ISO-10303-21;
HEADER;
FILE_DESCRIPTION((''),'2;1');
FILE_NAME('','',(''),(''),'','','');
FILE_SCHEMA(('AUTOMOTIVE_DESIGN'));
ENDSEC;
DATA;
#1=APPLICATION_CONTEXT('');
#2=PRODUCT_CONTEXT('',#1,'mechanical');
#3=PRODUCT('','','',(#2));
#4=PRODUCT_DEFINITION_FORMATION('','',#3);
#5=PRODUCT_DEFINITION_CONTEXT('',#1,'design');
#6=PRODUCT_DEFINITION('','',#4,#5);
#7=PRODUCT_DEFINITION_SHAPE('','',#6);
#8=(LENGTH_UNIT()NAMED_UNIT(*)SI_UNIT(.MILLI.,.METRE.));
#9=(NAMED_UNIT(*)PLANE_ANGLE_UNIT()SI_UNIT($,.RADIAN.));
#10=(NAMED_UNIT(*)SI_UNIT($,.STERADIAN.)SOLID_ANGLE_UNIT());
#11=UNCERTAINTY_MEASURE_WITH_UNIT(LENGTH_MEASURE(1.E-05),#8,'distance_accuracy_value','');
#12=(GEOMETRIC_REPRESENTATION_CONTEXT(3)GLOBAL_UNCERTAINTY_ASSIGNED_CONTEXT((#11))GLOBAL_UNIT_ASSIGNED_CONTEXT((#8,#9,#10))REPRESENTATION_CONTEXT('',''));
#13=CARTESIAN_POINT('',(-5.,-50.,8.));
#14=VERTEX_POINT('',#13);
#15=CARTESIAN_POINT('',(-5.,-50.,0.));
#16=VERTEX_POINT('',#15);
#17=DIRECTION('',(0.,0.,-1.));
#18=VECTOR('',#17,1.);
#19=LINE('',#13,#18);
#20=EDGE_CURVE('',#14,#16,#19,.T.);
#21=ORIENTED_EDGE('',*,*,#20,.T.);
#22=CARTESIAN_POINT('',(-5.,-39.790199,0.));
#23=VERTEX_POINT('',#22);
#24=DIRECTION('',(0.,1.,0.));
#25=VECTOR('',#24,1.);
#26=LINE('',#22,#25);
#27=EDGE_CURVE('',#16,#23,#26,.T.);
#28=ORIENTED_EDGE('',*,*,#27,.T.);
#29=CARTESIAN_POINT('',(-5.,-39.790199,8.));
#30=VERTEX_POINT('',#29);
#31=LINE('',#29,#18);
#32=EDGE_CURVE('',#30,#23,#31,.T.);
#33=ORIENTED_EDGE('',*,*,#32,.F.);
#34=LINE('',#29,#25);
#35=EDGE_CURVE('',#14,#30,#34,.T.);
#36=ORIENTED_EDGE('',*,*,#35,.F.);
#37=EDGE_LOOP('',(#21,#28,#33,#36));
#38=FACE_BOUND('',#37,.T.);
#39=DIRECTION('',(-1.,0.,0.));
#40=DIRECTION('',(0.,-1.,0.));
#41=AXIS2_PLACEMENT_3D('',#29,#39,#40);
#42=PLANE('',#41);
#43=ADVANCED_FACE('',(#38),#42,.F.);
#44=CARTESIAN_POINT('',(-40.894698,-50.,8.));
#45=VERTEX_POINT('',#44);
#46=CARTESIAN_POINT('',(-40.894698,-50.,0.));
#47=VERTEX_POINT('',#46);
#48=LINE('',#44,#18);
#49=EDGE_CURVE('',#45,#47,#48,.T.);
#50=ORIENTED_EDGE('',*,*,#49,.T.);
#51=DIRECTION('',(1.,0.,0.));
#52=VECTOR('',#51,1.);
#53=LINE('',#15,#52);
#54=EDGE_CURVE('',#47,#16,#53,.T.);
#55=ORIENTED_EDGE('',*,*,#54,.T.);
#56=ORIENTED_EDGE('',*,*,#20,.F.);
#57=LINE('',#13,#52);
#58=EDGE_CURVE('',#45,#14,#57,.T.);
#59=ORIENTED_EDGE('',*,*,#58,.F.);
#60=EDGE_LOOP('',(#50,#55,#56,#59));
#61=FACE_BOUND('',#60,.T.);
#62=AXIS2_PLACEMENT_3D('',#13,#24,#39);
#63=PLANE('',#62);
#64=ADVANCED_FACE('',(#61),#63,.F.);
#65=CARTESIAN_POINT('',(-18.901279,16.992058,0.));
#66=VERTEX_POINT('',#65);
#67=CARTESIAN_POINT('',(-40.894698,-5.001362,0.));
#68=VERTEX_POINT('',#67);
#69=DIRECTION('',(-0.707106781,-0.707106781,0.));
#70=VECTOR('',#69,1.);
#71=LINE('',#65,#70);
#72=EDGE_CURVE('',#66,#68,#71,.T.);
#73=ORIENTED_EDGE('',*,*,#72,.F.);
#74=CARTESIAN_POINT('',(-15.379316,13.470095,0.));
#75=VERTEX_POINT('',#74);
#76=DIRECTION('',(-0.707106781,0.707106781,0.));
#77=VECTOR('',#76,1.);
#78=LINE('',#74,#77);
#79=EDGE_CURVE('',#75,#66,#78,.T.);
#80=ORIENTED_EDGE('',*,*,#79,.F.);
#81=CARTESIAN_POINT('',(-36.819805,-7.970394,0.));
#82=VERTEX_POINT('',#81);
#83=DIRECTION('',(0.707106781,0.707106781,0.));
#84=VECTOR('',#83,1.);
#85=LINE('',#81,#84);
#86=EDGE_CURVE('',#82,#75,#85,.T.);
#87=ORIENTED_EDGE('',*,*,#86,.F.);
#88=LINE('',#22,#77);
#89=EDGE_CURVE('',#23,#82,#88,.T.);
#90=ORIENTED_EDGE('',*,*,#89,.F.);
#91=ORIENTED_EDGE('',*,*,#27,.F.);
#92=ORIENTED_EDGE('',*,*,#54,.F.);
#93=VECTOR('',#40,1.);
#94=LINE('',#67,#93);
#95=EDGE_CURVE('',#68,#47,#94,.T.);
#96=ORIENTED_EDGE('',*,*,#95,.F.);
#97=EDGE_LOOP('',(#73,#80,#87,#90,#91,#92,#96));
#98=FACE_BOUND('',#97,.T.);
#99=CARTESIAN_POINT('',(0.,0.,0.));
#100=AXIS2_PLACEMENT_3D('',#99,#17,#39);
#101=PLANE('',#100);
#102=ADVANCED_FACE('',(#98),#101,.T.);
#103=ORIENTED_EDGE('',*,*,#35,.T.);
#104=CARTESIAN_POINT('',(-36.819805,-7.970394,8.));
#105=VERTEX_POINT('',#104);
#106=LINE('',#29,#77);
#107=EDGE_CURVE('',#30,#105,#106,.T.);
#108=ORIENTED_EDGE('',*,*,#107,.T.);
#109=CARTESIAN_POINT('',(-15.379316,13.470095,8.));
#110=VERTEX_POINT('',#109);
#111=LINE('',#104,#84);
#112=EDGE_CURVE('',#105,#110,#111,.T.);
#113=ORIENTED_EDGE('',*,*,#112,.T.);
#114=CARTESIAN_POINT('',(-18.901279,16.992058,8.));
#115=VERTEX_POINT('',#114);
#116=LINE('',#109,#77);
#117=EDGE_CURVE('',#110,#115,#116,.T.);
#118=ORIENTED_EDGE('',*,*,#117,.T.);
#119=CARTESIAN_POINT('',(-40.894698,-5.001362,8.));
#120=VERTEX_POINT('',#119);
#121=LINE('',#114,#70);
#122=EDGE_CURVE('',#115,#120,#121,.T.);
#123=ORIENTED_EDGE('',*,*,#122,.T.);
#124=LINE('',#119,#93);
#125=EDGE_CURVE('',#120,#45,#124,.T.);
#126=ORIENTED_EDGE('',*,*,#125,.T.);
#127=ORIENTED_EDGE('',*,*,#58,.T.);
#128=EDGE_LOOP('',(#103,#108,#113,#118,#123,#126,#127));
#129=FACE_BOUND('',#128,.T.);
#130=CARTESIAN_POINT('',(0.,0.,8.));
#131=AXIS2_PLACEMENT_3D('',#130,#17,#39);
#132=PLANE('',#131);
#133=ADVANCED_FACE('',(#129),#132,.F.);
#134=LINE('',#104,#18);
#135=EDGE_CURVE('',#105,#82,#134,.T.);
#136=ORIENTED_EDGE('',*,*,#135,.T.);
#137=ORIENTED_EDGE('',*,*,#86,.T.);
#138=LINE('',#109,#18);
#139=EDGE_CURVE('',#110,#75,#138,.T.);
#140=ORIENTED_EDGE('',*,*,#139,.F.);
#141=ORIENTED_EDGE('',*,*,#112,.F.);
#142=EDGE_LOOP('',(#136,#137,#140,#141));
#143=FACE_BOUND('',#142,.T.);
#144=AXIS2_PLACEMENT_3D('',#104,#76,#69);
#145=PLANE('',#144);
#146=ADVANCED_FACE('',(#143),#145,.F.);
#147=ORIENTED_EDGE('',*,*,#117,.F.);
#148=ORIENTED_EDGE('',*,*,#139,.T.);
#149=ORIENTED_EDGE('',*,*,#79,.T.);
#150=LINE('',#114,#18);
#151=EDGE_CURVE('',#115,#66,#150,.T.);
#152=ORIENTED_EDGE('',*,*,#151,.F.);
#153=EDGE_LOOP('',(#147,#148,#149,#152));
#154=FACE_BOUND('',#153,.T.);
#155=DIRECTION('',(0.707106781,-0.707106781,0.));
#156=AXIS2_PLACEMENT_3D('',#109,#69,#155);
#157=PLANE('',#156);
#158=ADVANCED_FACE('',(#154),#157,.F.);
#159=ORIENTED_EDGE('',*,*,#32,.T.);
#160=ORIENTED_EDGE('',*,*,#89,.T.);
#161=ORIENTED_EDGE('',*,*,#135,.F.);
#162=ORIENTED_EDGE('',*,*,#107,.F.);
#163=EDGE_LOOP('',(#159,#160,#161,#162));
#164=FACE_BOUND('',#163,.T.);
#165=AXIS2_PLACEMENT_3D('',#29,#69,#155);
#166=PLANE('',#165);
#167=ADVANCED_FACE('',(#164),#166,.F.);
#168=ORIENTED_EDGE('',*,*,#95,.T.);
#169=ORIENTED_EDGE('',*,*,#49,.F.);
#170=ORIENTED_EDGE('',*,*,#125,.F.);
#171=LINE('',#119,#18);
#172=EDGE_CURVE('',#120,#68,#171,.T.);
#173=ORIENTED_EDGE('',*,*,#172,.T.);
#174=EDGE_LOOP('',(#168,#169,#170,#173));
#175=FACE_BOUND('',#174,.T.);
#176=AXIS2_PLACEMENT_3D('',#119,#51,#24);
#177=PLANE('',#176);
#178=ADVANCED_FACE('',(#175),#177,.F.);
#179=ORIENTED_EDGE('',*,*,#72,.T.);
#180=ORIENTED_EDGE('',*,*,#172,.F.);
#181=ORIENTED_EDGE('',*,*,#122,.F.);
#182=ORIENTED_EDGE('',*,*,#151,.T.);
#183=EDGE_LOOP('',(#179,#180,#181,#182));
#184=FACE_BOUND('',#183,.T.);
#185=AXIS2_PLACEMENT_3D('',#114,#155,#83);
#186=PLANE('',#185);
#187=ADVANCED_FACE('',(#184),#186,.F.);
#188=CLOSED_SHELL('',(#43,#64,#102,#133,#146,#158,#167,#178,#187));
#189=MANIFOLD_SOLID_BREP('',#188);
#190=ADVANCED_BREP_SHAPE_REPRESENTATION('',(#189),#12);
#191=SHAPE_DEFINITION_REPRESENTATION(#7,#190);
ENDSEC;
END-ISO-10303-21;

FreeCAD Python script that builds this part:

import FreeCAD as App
import Part
import Sketcher

V = App.Vector
Q = App.Units.Quantity


def add_polygon(sketch, points):
    """Adds a closed chain of lines whose ends are joined by coincident constraints."""
    first, n = sketch.GeometryCount, len(points)
    for a, b in zip(points, points[1:] + points[:1]):
        sketch.addGeometry(Part.LineSegment(App.Vector(*a, 0), App.Vector(*b, 0)), False)
    for i in range(n):
        sketch.addConstraint(Sketcher.Constraint("Coincident", first + i, 2, first + (i + 1) % n, 1))

doc = App.newDocument("Part")
body = doc.addObject("PartDesign::Body", "Body")

# Sketch on XY plane
sketch1 = body.newObject("Sketcher::SketchObject", "Sketch")
sketch1.AttachmentSupport = (doc.getObject("XY_Plane"), [""])
sketch1.MapMode = "FlatFace"
add_polygon(sketch1, [(-5, -50), (-5, -39.790199), (-36.819805, -7.970394), (-15.379316, 13.470095), (-18.901279, 16.992058), (-40.894698, -5.001362), (-40.894698, -50)])  # lines 0-6
sketch1.addConstraint(Sketcher.Constraint("Vertical", 0))
sketch1.addConstraint(Sketcher.Constraint("Vertical", 5))
sketch1.addConstraint(Sketcher.Constraint("Horizontal", 6))
sketch1.addConstraint(Sketcher.Constraint("Perpendicular", 1, 2))
sketch1.addConstraint(Sketcher.Constraint("Perpendicular", 2, 3))
sketch1.addConstraint(Sketcher.Constraint("Perpendicular", 3, 4))
sketch1.addConstraint(Sketcher.Constraint("Angle", 1, Q("135 deg")))
sketch1.addConstraint(Sketcher.Constraint("Distance", 1, 45.0))
sketch1.addConstraint(Sketcher.Constraint("DistanceX", 0, 2, -1, 1, 5.0))
sketch1.addConstraint(Sketcher.Constraint("DistanceY", 5, 2, -1, 1, 50.0))
sketch1.addConstraint(Sketcher.Constraint("DistanceX", 6, 1, 6, 2, 35.894698))
sketch1.addConstraint(Sketcher.Constraint("DistanceY", 0, 1, 0, 2, 10.209801))
sketch1.addConstraint(Sketcher.Constraint("Distance", 2, 30.32143))
sketch1.addConstraint(Sketcher.Constraint("DistanceY", 5, 2, 5, 1, 44.998638))
pad1 = body.newObject("PartDesign::Pad", "Pad")
pad1.Profile = sketch1
pad1.Length = 8

doc.recompute()
